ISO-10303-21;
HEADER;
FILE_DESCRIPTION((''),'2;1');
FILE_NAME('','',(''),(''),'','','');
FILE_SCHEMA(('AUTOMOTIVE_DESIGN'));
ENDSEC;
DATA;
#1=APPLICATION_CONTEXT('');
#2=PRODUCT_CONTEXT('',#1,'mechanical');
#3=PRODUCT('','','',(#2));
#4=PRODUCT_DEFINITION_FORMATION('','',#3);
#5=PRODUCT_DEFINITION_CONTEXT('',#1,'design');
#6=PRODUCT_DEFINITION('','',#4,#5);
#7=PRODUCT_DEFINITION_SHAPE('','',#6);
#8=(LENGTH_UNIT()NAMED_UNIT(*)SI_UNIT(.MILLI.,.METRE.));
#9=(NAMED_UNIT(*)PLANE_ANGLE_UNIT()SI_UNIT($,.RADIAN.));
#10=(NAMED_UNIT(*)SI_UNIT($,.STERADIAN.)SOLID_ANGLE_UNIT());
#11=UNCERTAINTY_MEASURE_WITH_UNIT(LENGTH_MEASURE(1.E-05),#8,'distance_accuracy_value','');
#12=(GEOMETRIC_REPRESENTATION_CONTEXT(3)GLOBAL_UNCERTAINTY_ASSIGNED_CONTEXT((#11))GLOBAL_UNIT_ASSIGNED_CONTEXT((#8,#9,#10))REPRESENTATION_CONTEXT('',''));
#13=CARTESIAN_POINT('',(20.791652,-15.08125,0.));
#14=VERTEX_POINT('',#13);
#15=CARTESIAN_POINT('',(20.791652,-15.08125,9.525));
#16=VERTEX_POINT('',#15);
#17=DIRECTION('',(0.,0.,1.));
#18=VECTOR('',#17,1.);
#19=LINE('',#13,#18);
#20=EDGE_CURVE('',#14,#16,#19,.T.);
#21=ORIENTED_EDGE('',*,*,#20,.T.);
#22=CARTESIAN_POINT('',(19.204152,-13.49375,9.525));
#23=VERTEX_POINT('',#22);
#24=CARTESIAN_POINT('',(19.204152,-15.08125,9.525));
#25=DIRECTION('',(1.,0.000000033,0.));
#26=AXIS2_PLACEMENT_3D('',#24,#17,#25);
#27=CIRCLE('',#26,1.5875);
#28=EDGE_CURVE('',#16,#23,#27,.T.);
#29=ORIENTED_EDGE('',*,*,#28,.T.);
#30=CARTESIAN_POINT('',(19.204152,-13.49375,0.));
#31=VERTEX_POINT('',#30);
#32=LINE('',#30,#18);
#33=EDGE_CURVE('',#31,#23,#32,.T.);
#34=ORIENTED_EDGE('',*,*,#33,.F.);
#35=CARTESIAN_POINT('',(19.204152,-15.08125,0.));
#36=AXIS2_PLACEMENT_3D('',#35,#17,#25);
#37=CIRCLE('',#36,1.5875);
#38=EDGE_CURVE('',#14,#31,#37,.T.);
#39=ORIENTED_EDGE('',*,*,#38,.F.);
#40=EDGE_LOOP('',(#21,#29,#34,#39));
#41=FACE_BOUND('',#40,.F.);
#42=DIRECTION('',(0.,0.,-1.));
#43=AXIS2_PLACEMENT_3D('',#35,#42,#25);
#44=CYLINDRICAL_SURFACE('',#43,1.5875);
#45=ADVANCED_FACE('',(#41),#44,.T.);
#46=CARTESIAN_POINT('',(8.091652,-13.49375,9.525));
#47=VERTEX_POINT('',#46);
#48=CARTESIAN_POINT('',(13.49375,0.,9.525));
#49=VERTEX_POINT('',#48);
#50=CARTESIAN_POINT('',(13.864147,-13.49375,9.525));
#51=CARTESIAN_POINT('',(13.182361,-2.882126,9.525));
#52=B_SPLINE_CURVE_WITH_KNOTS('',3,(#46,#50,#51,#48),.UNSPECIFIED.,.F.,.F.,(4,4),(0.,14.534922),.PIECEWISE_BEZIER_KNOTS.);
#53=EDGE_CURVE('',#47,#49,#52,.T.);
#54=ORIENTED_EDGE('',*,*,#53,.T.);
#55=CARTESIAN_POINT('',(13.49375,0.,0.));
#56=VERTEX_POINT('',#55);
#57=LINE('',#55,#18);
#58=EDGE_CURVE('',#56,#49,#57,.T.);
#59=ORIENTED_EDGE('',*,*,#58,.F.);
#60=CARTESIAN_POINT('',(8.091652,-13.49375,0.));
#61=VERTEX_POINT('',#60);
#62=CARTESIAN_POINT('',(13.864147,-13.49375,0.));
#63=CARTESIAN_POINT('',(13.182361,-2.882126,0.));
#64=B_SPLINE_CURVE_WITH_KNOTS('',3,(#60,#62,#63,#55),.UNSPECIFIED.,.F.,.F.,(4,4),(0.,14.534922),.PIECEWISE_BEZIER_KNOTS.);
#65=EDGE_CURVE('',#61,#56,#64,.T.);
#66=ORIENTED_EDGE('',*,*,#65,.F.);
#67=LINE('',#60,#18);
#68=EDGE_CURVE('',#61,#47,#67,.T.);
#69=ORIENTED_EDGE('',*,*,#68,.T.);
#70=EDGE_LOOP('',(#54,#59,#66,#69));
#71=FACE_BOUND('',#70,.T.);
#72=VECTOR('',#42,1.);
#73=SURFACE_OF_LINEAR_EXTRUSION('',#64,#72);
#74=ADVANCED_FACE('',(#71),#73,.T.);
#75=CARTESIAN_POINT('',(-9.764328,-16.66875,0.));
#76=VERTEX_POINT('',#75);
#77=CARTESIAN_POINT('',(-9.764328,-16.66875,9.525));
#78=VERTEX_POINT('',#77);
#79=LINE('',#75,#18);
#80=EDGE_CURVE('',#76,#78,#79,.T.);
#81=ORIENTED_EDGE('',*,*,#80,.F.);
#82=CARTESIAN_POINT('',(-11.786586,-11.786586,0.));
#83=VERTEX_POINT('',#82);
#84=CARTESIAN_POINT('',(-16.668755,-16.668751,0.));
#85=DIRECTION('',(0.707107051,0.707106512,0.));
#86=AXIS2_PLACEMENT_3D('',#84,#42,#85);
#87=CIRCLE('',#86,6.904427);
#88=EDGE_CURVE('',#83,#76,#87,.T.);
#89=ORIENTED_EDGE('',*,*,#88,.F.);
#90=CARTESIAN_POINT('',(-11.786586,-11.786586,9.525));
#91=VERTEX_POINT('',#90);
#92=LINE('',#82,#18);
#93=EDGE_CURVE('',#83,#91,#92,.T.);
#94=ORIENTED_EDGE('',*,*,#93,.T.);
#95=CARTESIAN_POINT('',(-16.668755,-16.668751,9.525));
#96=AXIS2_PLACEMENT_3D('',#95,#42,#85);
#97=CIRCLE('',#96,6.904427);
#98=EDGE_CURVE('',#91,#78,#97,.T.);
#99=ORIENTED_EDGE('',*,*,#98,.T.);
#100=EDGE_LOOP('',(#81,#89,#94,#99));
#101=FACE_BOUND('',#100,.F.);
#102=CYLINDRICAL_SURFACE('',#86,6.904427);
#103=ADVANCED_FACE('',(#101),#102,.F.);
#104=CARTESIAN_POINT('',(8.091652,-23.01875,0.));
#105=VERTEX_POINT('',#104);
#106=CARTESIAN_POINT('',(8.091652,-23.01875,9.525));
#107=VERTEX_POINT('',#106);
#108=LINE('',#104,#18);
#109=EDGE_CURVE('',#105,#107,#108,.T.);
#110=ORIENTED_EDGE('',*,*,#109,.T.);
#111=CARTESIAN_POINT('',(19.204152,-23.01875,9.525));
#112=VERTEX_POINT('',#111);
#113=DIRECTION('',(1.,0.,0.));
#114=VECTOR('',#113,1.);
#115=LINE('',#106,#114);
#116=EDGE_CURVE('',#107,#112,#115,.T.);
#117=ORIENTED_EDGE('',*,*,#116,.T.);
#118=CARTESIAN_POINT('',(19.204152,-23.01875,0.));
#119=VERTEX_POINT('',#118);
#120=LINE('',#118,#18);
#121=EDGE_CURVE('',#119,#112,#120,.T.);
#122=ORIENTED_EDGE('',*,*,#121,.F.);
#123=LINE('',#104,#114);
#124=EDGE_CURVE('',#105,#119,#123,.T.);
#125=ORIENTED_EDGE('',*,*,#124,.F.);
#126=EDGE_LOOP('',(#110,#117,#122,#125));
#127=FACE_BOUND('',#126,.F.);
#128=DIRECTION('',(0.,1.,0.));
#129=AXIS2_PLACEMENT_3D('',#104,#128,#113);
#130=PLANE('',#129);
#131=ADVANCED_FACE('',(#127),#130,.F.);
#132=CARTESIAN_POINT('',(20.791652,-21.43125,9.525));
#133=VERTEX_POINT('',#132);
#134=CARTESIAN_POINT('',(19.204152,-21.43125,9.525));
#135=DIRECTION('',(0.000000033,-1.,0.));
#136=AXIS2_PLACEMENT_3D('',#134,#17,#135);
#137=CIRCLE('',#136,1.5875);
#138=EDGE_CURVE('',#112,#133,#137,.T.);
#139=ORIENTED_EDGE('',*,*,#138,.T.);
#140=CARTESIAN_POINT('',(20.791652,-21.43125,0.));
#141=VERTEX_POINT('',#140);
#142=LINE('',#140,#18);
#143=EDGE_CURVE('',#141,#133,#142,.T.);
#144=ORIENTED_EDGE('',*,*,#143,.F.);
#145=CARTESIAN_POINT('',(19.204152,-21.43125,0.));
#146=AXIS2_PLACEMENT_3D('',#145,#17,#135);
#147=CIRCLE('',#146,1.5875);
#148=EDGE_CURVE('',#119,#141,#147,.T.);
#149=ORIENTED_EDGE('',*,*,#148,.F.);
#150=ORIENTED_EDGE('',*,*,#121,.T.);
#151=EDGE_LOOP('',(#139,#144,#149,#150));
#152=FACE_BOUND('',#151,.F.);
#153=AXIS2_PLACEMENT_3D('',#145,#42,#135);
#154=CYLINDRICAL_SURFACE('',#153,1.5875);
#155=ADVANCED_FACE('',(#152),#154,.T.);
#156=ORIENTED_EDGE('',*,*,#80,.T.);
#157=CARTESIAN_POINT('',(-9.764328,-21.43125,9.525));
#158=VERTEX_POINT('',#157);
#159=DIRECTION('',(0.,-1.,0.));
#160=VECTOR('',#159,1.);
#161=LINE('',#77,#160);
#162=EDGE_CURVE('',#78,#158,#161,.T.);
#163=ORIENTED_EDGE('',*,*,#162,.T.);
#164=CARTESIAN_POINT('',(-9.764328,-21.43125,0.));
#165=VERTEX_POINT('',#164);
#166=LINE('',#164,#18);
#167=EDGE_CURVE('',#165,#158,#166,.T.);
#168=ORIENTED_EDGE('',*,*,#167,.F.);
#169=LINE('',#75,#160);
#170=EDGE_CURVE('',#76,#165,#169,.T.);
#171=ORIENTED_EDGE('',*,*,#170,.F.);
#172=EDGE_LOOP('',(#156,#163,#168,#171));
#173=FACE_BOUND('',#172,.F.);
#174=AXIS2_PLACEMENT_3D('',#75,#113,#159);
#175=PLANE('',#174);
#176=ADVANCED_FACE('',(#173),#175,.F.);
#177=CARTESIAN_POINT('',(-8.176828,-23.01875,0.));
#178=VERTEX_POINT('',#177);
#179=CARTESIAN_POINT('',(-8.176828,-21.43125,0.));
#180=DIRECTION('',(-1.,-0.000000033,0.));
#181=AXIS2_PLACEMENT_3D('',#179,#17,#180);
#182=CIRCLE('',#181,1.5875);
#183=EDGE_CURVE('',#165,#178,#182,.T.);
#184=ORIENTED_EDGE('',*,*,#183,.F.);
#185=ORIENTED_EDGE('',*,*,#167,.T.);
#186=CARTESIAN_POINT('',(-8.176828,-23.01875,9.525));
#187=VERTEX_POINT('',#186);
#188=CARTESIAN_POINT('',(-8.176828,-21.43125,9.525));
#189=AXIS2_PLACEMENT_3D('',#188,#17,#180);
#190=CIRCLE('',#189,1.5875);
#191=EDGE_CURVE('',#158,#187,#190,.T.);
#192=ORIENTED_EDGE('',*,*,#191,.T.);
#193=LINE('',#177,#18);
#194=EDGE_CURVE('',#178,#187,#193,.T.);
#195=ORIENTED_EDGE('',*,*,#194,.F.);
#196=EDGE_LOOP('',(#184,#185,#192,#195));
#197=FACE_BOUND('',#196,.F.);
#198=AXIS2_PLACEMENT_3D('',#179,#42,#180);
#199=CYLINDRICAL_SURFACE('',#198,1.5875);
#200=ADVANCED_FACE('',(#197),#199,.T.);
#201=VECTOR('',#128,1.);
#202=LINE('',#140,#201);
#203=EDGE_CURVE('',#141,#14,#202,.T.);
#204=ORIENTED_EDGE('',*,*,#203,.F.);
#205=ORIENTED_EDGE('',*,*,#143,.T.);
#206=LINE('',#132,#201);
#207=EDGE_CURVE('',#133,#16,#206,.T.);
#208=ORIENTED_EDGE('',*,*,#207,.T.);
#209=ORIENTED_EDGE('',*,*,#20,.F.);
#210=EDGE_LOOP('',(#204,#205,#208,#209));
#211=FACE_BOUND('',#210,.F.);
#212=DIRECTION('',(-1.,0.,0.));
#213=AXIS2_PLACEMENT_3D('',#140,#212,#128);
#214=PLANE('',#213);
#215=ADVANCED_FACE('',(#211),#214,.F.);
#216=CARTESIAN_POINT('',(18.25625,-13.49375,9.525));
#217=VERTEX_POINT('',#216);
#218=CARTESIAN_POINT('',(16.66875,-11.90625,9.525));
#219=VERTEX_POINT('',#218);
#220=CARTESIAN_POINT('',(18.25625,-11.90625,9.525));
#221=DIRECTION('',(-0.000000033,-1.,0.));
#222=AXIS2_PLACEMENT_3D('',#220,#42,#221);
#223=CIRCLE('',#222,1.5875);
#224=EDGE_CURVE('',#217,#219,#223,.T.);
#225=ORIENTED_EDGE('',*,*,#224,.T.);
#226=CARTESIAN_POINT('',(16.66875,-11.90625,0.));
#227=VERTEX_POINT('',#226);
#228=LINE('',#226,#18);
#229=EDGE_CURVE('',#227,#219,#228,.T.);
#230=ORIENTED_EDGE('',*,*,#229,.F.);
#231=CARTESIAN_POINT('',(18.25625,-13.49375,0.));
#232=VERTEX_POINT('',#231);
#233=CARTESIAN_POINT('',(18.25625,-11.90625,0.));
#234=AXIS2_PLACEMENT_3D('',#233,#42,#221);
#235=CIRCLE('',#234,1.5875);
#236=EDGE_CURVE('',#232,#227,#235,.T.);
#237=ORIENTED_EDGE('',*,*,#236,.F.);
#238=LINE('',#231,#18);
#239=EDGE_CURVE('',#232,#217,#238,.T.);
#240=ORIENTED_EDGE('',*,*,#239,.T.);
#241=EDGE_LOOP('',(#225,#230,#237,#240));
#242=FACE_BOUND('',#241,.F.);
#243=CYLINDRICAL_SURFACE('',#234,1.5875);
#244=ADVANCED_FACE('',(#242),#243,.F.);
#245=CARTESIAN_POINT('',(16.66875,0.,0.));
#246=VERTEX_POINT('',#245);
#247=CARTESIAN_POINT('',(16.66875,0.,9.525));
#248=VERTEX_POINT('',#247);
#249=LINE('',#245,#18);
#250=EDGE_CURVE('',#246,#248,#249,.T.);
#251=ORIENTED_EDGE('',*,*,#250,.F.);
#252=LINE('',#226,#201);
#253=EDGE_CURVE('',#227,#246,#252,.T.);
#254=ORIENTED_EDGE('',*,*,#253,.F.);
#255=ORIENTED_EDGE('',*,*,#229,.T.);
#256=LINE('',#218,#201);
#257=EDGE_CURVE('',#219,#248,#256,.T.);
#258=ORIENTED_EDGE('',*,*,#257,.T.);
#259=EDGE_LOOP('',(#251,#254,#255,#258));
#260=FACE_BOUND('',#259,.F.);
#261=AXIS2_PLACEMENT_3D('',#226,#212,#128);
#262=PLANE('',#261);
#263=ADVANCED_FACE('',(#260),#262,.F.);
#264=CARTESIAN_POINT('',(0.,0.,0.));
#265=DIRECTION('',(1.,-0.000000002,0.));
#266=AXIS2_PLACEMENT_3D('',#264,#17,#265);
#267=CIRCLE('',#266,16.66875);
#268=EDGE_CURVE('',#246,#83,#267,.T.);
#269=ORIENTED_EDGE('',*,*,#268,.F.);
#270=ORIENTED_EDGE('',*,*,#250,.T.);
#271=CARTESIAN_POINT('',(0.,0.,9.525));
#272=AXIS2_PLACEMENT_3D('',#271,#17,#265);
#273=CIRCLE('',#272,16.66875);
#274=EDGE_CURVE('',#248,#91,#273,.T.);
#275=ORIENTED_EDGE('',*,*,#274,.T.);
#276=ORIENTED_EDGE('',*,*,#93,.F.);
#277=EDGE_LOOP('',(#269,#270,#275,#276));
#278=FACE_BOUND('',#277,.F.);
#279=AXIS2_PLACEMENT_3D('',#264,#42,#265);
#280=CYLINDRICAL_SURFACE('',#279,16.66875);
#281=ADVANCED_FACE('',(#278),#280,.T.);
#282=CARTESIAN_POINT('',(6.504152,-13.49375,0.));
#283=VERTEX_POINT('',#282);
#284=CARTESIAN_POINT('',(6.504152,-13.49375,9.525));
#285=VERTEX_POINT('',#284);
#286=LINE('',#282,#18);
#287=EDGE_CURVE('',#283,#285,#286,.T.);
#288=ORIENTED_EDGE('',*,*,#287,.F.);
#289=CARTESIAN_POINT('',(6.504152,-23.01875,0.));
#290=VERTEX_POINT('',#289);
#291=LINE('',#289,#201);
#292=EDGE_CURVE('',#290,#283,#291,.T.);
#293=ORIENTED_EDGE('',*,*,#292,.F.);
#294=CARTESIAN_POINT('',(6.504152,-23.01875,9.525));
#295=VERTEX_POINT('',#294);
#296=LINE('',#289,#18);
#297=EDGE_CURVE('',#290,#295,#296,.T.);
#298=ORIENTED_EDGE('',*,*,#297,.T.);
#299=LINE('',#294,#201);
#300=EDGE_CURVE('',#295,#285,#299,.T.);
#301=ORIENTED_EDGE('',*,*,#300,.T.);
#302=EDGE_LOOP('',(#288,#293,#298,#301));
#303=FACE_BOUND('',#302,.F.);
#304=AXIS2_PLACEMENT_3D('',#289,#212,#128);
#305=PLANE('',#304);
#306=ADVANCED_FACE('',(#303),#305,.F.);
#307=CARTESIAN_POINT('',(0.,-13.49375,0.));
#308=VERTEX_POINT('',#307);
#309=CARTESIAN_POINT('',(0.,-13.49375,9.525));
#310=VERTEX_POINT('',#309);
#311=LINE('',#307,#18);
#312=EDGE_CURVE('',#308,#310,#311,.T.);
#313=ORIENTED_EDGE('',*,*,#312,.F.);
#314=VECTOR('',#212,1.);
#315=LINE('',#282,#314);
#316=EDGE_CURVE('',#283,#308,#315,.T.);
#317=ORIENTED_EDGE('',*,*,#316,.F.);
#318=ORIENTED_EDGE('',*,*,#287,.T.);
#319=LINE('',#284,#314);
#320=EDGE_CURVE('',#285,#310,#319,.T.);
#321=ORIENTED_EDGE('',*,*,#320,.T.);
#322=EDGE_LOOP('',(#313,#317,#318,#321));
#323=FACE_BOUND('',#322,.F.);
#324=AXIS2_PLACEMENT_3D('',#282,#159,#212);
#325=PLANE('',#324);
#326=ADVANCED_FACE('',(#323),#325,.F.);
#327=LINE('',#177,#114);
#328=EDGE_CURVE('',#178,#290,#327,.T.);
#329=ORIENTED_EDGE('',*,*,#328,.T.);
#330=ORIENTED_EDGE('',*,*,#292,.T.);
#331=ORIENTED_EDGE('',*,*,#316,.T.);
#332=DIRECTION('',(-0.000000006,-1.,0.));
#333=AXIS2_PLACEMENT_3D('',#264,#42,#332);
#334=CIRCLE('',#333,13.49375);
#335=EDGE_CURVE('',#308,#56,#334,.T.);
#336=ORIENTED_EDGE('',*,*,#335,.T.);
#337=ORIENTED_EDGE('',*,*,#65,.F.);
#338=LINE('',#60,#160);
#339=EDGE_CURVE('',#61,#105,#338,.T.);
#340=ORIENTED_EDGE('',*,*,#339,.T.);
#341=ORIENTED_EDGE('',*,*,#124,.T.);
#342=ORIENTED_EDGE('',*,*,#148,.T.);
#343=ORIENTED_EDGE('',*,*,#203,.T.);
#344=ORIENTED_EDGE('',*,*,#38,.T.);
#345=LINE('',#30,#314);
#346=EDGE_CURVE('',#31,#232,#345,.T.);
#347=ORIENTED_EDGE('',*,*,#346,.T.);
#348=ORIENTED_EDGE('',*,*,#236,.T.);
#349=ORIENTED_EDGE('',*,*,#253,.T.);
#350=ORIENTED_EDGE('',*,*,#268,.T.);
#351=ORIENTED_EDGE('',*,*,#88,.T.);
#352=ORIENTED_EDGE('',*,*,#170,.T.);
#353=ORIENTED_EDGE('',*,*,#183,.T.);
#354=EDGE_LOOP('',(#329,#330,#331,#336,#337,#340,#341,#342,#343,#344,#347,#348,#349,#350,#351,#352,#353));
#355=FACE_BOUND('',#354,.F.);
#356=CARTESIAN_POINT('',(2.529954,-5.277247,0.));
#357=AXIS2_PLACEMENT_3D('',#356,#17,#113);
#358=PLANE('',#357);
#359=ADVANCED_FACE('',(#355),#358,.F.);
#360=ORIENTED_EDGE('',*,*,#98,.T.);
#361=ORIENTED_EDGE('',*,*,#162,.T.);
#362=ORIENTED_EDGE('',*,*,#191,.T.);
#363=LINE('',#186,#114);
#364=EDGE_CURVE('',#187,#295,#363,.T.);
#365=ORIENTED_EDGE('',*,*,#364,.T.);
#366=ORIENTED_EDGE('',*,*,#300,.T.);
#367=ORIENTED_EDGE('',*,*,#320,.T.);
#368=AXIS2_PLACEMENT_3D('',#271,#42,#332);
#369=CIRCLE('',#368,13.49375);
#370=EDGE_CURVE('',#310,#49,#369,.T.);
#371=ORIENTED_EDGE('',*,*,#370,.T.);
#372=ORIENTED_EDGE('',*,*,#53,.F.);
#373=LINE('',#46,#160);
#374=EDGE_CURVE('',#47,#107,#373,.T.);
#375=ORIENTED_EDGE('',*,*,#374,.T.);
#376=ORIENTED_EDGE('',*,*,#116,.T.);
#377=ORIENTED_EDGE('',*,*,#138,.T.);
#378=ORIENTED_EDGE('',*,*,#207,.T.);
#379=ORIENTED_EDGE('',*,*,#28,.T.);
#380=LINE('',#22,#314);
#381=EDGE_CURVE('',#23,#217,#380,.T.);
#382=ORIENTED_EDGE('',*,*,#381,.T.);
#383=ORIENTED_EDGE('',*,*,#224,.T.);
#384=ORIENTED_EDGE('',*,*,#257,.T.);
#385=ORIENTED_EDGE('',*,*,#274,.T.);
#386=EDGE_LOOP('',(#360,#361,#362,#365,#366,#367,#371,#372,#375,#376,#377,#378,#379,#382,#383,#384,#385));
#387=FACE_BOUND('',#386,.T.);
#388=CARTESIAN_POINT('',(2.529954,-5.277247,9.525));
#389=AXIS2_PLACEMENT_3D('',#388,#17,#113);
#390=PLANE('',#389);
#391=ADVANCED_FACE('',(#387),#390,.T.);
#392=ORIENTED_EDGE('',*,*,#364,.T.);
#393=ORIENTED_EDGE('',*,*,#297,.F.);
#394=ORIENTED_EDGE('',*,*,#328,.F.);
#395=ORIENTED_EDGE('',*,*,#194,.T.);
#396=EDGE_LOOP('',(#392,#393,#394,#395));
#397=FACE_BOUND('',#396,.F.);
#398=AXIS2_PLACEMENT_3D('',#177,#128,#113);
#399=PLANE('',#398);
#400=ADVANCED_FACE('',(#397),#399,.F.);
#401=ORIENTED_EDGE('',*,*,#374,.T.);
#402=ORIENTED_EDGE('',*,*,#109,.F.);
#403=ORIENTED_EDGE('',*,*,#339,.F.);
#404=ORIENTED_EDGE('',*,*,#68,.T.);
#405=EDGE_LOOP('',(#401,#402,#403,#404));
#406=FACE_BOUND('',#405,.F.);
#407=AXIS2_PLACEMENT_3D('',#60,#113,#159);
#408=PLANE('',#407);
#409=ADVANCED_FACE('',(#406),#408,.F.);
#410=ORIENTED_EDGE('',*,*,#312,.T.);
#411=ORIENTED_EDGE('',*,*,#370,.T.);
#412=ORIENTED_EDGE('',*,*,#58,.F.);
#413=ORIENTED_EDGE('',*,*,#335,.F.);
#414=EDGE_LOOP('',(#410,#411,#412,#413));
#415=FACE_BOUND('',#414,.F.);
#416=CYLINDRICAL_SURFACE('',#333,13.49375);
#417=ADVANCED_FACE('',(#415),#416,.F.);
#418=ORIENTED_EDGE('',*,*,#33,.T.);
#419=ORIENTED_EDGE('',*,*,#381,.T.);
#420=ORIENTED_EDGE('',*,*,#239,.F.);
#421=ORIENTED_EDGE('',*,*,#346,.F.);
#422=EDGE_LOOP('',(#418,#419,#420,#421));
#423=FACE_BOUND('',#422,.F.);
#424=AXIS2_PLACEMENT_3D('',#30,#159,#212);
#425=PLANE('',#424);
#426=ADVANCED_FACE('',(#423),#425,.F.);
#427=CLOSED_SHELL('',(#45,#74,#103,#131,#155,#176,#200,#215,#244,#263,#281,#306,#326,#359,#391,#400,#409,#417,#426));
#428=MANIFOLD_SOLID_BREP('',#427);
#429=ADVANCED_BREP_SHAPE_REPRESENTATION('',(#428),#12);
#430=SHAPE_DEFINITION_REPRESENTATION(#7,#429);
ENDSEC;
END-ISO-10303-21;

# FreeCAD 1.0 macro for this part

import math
import FreeCAD as App
import Part
import Sketcher
from FreeCAD import Vector
Q = App.Units.Quantity

doc = App.newDocument("Part")
body = doc.addObject("PartDesign::Body", "Body")

# Sketch on XY plane
sketch1 = body.newObject("Sketcher::SketchObject", "Sketch")
sketch1.AttachmentSupport = (doc.getObject("XY_Plane"), [""])
sketch1.MapMode = "FlatFace"
sketch1.addGeometry(Part.ArcOfCircle(Part.Circle(Vector(0, 0, 0), Vector(0, 0, 1), 13.49375), math.radians(0), math.radians(270)), False)
sketch1.addGeometry(Part.BSplineCurve([Vector(8.091652, -13.49375, 0), Vector(13.864147, -13.49375, 0), Vector(13.182361, -2.882126, 0), Vector(13.49375, 0, 0)], [4, 4], [0, 14.534922], False, 3, [1, 1, 1, 1], False), False)
sketch1.addGeometry(Part.LineSegment(Vector(8.091652, -13.49375, 0), Vector(8.091652, -23.01875, 0)), False)
sketch1.addGeometry(Part.LineSegment(Vector(8.091652, -23.01875, 0), Vector(19.204152, -23.01875, 0)), False)
sketch1.addGeometry(Part.ArcOfCircle(Part.Circle(Vector(19.204152, -21.43125, 0), Vector(0, 0, 1), 1.5875), math.radians(-89.999998), math.radians(-0.000002)), False)
sketch1.addGeometry(Part.LineSegment(Vector(20.791652, -21.43125, 0), Vector(20.791652, -15.08125, 0)), False)
sketch1.addGeometry(Part.ArcOfCircle(Part.Circle(Vector(19.204152, -15.08125, 0), Vector(0, 0, 1), 1.5875), math.radians(0.000002), math.radians(89.999998)), False)
sketch1.addGeometry(Part.LineSegment(Vector(19.204152, -13.49375, 0), Vector(18.25625, -13.49375, 0)), False)
sketch1.addGeometry(Part.ArcOfCircle(Part.Circle(Vector(18.25625, -11.90625, 0), Vector(0, 0, 1), 1.5875), math.radians(-179.999998), math.radians(-90.000002)), False)
sketch1.addGeometry(Part.LineSegment(Vector(16.66875, -11.90625, 0), Vector(16.66875, 0, 0)), False)
sketch1.addGeometry(Part.ArcOfCircle(Part.Circle(Vector(0, 0, 0), Vector(0, 0, 1), 16.66875), math.radians(0), math.radians(225)), False)
sketch1.addGeometry(Part.ArcOfCircle(Part.Circle(Vector(-16.668755, -16.668751, 0), Vector(0, 0, 1), 6.904427), math.radians(0.000011), math.radians(44.999978)), False)
sketch1.addGeometry(Part.LineSegment(Vector(-9.764328, -16.66875, 0), Vector(-9.764328, -21.43125, 0)), False)
sketch1.addGeometry(Part.ArcOfCircle(Part.Circle(Vector(-8.176828, -21.43125, 0), Vector(0, 0, 1), 1.5875), math.radians(-179.999998), math.radians(-90.000002)), False)
sketch1.addGeometry(Part.LineSegment(Vector(-8.176828, -23.01875, 0), Vector(6.504152, -23.01875, 0)), False)
sketch1.addGeometry(Part.LineSegment(Vector(6.504152, -23.01875, 0), Vector(6.504152, -13.49375, 0)), False)
sketch1.addGeometry(Part.LineSegment(Vector(6.504152, -13.49375, 0), Vector(0, -13.49375, 0)), False)
sketch1.addConstraint(Sketcher.Constraint("Block", 1))
sketch1.addConstraint(Sketcher.Constraint("Coincident", 0, 1, 1, 2))
sketch1.addConstraint(Sketcher.Constraint("Coincident", 1, 1, 2, 1))
sketch1.addConstraint(Sketcher.Constraint("Coincident", 2, 2, 3, 1))
sketch1.addConstraint(Sketcher.Constraint("Tangent", 3, 2, 4, 1))
sketch1.addConstraint(Sketcher.Constraint("Tangent", 4, 2, 5, 1))
sketch1.addConstraint(Sketcher.Constraint("Tangent", 5, 2, 6, 1))
sketch1.addConstraint(Sketcher.Constraint("Tangent", 6, 2, 7, 1))
sketch1.addConstraint(Sketcher.Constraint("Tangent", 7, 2, 8, 2))
sketch1.addConstraint(Sketcher.Constraint("Tangent", 8, 1, 9, 1))
sketch1.addConstraint(Sketcher.Constraint("Tangent", 9, 2, 10, 1))
sketch1.addConstraint(Sketcher.Constraint("Tangent", 10, 2, 11, 2))
sketch1.addConstraint(Sketcher.Constraint("Tangent", 11, 1, 12, 1))
sketch1.addConstraint(Sketcher.Constraint("Tangent", 12, 2, 13, 1))
sketch1.addConstraint(Sketcher.Constraint("Tangent", 13, 2, 14, 1))
sketch1.addConstraint(Sketcher.Constraint("Coincident", 14, 2, 15, 1))
sketch1.addConstraint(Sketcher.Constraint("Coincident", 15, 2, 16, 1))
sketch1.addConstraint(Sketcher.Constraint("Tangent", 16, 2, 0, 2))
sketch1.addConstraint(Sketcher.Constraint("Vertical", 2))
sketch1.addConstraint(Sketcher.Constraint("Horizontal", 3))
sketch1.addConstraint(Sketcher.Constraint("Vertical", 5))
sketch1.addConstraint(Sketcher.Constraint("Horizontal", 7))
sketch1.addConstraint(Sketcher.Constraint("Vertical", 9))
sketch1.addConstraint(Sketcher.Constraint("Vertical", 12))
sketch1.addConstraint(Sketcher.Constraint("Horizontal", 14))
sketch1.addConstraint(Sketcher.Constraint("Vertical", 15))
sketch1.addConstraint(Sketcher.Constraint("Horizontal", 16))
sketch1.addConstraint(Sketcher.Constraint("Coincident", 0, 3, -1, 1))
sketch1.addConstraint(Sketcher.Constraint("Coincident", 10, 3, -1, 1))
sketch1.addConstraint(Sketcher.Constraint("Equal", 4, 6))
sketch1.addConstraint(Sketcher.Constraint("Equal", 6, 8))
sketch1.addConstraint(Sketcher.Constraint("Equal", 8, 13))
sketch1.addConstraint(Sketcher.Constraint("Horizontal", 4, 3, 13, 3))
sketch1.addConstraint(Sketcher.Constraint("Horizontal", 7, 2, 15, 2))
sketch1.addConstraint(Sketcher.Constraint("Radius", 4, Q("0.0625 in")))
sketch1.addConstraint(Sketcher.Constraint("Radius", 10, Q("0.65625 in")))
sketch1.addConstraint(Sketcher.Constraint("DistanceY", 5, 1, 5, 2, Q("0.25 in")))
sketch1.addConstraint(Sketcher.Constraint("DistanceX", 2, 2, 4, 2, Q("0.5 in")))
sketch1.addConstraint(Sketcher.Constraint("DistanceX", 14, 2, 3, 2, Q("0.5 in")))
sketch1.addConstraint(Sketcher.Constraint("DistanceY", 12, 2, 12, 1, Q("0.1875 in")))
sketch1.addConstraint(Sketcher.Constraint("Radius", 11, 6.904427))
pad1 = body.newObject("PartDesign::Pad", "Pad")
pad1.Profile = sketch1
pad1.Length = Q("0.375 in")

doc.recompute()
